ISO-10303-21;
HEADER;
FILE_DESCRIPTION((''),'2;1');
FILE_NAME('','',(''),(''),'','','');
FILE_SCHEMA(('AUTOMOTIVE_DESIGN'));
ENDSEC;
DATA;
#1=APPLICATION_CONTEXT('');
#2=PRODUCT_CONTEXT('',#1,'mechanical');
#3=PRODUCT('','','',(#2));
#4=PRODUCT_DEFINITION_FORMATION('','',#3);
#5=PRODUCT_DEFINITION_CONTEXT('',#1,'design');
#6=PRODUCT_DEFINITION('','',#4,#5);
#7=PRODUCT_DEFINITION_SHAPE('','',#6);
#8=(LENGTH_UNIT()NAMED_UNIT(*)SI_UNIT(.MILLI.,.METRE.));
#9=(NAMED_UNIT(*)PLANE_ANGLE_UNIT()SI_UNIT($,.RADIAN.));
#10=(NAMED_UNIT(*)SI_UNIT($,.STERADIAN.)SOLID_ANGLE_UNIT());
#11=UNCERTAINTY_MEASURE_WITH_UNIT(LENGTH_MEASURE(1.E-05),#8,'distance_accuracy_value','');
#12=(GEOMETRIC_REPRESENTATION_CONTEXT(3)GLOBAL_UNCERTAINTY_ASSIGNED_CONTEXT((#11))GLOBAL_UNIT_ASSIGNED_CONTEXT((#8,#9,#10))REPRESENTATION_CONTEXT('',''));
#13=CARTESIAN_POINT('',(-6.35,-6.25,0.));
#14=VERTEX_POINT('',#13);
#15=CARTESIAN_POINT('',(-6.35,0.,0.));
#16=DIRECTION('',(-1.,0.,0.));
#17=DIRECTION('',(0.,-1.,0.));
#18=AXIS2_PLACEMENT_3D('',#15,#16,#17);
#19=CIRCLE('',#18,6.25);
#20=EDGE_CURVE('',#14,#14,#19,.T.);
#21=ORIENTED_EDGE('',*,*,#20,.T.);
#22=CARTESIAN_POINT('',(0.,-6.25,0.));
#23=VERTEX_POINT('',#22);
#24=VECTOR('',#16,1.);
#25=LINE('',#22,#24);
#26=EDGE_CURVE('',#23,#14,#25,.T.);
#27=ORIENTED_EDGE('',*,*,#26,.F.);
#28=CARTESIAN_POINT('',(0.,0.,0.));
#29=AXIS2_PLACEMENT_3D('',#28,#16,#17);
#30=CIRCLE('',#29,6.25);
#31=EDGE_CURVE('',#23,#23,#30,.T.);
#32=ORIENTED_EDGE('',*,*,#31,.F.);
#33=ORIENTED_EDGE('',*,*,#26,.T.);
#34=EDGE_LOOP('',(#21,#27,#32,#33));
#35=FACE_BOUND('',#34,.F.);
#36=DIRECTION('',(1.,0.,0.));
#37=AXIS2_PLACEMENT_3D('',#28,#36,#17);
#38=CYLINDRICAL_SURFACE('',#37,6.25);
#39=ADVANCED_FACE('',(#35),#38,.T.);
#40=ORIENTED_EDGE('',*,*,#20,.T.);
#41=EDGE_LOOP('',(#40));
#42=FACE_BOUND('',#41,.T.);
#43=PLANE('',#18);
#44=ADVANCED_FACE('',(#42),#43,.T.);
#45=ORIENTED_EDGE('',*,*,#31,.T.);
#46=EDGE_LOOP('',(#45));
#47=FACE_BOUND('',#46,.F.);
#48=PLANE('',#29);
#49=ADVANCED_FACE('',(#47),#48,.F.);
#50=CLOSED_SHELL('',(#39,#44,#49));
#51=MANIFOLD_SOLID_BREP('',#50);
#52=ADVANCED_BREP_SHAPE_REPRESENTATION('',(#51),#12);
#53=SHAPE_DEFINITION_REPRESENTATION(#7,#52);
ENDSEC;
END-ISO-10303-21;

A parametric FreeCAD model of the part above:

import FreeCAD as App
import Part
import Sketcher

V = App.Vector

doc = App.newDocument("Part")
body = doc.addObject("PartDesign::Body", "Body")

# Sketch on XZ plane
sketch1 = body.newObject("Sketcher::SketchObject", "Sketch")
sketch1.AttachmentSupport = (doc.getObject("XZ_Plane"), [""])
sketch1.MapMode = "FlatFace"
sketch1.addGeometry(Part.Circle(V(0, 0, 0), V(0, 0, 1), 6), False)
sketch1.addConstraint([
    Sketcher.Constraint("Coincident", 0, 3, -1, 1),
    Sketcher.Constraint("Diameter", 0, 12.5),
])
pad1 = body.newObject("PartDesign::Pad", "Pad")
pad1.Profile = sketch1
pad1.Length = 6.35
body2 = doc.addObject("PartDesign::Body", "Body001")
doc.recompute()

body.Placement = App.Placement(V(0, 0, 0), App.Rotation(V(0, 0, -1), 90))
boolean = body2.newObject("PartDesign::Boolean", "Boolean")
boolean.Type = "Fuse"
boolean.addObjects([body])

doc.recompute()
